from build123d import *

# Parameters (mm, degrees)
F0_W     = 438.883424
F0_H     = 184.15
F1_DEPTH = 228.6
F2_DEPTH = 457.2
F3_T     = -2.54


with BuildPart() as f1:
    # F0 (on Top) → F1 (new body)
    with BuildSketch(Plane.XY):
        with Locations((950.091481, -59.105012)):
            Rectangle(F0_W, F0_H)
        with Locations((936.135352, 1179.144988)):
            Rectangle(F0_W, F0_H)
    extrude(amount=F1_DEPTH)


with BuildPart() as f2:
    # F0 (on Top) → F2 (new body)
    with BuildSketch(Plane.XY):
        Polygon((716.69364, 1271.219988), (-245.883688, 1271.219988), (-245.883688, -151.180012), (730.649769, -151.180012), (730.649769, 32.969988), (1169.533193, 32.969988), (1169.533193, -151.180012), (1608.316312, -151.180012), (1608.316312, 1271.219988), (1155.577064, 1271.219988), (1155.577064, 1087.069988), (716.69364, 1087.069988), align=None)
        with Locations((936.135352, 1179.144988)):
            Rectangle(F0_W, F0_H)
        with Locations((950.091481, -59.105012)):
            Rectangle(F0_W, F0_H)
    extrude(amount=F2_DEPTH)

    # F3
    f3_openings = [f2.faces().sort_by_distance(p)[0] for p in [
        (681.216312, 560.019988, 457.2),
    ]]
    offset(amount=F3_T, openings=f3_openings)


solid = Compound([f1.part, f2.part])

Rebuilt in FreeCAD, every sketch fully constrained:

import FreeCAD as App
import Part
import Sketcher
Q = App.Units.Quantity


def faces_at(feature, points):
    """Names of the faces that lie closest to the given points."""
    faces = feature.Shape.Faces
    near = lambda p: min(range(len(faces)), key=lambda i: faces[i].distToShape(Part.Vertex(*p))[0])
    return sorted({f"Face{near(p) + 1}" for p in points})

doc = App.newDocument("Part")
body = doc.addObject("PartDesign::Body", "Body")
body.AllowCompound = True

sketch1 = body.newObject("Sketcher::SketchObject", "Sketch")
sketch1.AttachmentSupport = (doc.getObject("XY_Plane"), [""])
sketch1.MapMode = "FlatFace"
sketch1.addGeometry([
    Part.LineSegment(App.Vector(731, 33, 0), App.Vector(731, -151, 0)),
    Part.LineSegment(App.Vector(731, -151, 0), App.Vector(1170, -151, 0)),
    Part.LineSegment(App.Vector(1170, -151, 0), App.Vector(1170, 33, 0)),
    Part.LineSegment(App.Vector(1170, 33, 0), App.Vector(731, 33, 0)),
    Part.LineSegment(App.Vector(717, 1271, 0), App.Vector(717, 1087, 0)),
    Part.LineSegment(App.Vector(717, 1087, 0), App.Vector(1156, 1087, 0)),
    Part.LineSegment(App.Vector(1156, 1087, 0), App.Vector(1156, 1271, 0)),
    Part.LineSegment(App.Vector(1156, 1271, 0), App.Vector(717, 1271, 0)),
], False)
sketch1.addConstraint([
    Sketcher.Constraint("Coincident", 0, 2, 1, 1),
    Sketcher.Constraint("Coincident", 1, 2, 2, 1),
    Sketcher.Constraint("Coincident", 2, 2, 3, 1),
    Sketcher.Constraint("Coincident", 3, 2, 0, 1),
    Sketcher.Constraint("Coincident", 4, 2, 5, 1),
    Sketcher.Constraint("Coincident", 5, 2, 6, 1),
    Sketcher.Constraint("Coincident", 6, 2, 7, 1),
    Sketcher.Constraint("Coincident", 7, 2, 4, 1),
    Sketcher.Constraint("Vertical", 0),
    Sketcher.Constraint("Horizontal", 1),
    Sketcher.Constraint("Vertical", 2),
    Sketcher.Constraint("Horizontal", 3),
    Sketcher.Constraint("Vertical", 4),
    Sketcher.Constraint("Horizontal", 5),
    Sketcher.Constraint("Vertical", 6),
    Sketcher.Constraint("Horizontal", 7),
    Sketcher.Constraint("Equal", 3, 5),
    Sketcher.Constraint("Equal", 2, 4),
    Sketcher.Constraint("DistanceY", 1, 2, 6, 2, Q("56 in")),
    Sketcher.Constraint("DistanceY", 0, 2, 0, 1, Q("7.25 in")),
    Sketcher.Constraint("DistanceX", 1, 1, 1, 2, 438.883424),
    Sketcher.Constraint("DistanceX", -1, 1, 0, 2, 730.649769),
    Sketcher.Constraint("DistanceY", 0, 2, -1, 1, 151.180012),
    Sketcher.Constraint("DistanceX", -1, 1, 4, 2, 716.69364),
])
pad1 = body.newObject("PartDesign::Pad", "Pad")
pad1.Profile = sketch1
pad1.Length = Q("9 in")
body2 = doc.addObject("PartDesign::Body", "Body001")

sketch2 = body2.newObject("Sketcher::SketchObject", "Sketch001")
sketch2.AttachmentSupport = (doc.getObject("XY_Plane001"), [""])
sketch2.MapMode = "FlatFace"
sketch2.addGeometry([
    Part.LineSegment(App.Vector(-246, 1271, 0), App.Vector(-246, -151, 0)),
    Part.LineSegment(App.Vector(-246, -151, 0), App.Vector(1608, -151, 0)),
    Part.LineSegment(App.Vector(1608, -151, 0), App.Vector(1608, 1271, 0)),
    Part.LineSegment(App.Vector(1608, 1271, 0), App.Vector(-246, 1271, 0)),
], False)
sketch2.addConstraint([
    Sketcher.Constraint("Coincident", 0, 2, 1, 1),
    Sketcher.Constraint("Coincident", 1, 2, 2, 1),
    Sketcher.Constraint("Coincident", 2, 2, 3, 1),
    Sketcher.Constraint("Coincident", 3, 2, 0, 1),
    Sketcher.Constraint("Vertical", 0),
    Sketcher.Constraint("Horizontal", 1),
    Sketcher.Constraint("Vertical", 2),
    Sketcher.Constraint("Horizontal", 3),
    Sketcher.Constraint("DistanceX", 1, 1, 1, 2, Q("73 in")),
    Sketcher.Constraint("DistanceY", 0, 2, 0, 1, Q("56 in")),
    Sketcher.Constraint("DistanceX", 0, 2, -1, 1, 245.883688),
    Sketcher.Constraint("DistanceY", 0, 2, -1, 1, 151.180012),
])
pad2 = body2.newObject("PartDesign::Pad", "Pad001")
pad2.Profile = sketch2
pad2.Length = Q("18 in")
doc.recompute()

thickness = body2.newObject("PartDesign::Thickness", "Thickness")
thickness.Base = (pad2, faces_at(pad2, [(681.216, 560.02, 457.2)]))
thickness.Value = Q("0.1 in")
thickness.Reversed = True
thickness.Join = "Arc"

doc.recompute()
